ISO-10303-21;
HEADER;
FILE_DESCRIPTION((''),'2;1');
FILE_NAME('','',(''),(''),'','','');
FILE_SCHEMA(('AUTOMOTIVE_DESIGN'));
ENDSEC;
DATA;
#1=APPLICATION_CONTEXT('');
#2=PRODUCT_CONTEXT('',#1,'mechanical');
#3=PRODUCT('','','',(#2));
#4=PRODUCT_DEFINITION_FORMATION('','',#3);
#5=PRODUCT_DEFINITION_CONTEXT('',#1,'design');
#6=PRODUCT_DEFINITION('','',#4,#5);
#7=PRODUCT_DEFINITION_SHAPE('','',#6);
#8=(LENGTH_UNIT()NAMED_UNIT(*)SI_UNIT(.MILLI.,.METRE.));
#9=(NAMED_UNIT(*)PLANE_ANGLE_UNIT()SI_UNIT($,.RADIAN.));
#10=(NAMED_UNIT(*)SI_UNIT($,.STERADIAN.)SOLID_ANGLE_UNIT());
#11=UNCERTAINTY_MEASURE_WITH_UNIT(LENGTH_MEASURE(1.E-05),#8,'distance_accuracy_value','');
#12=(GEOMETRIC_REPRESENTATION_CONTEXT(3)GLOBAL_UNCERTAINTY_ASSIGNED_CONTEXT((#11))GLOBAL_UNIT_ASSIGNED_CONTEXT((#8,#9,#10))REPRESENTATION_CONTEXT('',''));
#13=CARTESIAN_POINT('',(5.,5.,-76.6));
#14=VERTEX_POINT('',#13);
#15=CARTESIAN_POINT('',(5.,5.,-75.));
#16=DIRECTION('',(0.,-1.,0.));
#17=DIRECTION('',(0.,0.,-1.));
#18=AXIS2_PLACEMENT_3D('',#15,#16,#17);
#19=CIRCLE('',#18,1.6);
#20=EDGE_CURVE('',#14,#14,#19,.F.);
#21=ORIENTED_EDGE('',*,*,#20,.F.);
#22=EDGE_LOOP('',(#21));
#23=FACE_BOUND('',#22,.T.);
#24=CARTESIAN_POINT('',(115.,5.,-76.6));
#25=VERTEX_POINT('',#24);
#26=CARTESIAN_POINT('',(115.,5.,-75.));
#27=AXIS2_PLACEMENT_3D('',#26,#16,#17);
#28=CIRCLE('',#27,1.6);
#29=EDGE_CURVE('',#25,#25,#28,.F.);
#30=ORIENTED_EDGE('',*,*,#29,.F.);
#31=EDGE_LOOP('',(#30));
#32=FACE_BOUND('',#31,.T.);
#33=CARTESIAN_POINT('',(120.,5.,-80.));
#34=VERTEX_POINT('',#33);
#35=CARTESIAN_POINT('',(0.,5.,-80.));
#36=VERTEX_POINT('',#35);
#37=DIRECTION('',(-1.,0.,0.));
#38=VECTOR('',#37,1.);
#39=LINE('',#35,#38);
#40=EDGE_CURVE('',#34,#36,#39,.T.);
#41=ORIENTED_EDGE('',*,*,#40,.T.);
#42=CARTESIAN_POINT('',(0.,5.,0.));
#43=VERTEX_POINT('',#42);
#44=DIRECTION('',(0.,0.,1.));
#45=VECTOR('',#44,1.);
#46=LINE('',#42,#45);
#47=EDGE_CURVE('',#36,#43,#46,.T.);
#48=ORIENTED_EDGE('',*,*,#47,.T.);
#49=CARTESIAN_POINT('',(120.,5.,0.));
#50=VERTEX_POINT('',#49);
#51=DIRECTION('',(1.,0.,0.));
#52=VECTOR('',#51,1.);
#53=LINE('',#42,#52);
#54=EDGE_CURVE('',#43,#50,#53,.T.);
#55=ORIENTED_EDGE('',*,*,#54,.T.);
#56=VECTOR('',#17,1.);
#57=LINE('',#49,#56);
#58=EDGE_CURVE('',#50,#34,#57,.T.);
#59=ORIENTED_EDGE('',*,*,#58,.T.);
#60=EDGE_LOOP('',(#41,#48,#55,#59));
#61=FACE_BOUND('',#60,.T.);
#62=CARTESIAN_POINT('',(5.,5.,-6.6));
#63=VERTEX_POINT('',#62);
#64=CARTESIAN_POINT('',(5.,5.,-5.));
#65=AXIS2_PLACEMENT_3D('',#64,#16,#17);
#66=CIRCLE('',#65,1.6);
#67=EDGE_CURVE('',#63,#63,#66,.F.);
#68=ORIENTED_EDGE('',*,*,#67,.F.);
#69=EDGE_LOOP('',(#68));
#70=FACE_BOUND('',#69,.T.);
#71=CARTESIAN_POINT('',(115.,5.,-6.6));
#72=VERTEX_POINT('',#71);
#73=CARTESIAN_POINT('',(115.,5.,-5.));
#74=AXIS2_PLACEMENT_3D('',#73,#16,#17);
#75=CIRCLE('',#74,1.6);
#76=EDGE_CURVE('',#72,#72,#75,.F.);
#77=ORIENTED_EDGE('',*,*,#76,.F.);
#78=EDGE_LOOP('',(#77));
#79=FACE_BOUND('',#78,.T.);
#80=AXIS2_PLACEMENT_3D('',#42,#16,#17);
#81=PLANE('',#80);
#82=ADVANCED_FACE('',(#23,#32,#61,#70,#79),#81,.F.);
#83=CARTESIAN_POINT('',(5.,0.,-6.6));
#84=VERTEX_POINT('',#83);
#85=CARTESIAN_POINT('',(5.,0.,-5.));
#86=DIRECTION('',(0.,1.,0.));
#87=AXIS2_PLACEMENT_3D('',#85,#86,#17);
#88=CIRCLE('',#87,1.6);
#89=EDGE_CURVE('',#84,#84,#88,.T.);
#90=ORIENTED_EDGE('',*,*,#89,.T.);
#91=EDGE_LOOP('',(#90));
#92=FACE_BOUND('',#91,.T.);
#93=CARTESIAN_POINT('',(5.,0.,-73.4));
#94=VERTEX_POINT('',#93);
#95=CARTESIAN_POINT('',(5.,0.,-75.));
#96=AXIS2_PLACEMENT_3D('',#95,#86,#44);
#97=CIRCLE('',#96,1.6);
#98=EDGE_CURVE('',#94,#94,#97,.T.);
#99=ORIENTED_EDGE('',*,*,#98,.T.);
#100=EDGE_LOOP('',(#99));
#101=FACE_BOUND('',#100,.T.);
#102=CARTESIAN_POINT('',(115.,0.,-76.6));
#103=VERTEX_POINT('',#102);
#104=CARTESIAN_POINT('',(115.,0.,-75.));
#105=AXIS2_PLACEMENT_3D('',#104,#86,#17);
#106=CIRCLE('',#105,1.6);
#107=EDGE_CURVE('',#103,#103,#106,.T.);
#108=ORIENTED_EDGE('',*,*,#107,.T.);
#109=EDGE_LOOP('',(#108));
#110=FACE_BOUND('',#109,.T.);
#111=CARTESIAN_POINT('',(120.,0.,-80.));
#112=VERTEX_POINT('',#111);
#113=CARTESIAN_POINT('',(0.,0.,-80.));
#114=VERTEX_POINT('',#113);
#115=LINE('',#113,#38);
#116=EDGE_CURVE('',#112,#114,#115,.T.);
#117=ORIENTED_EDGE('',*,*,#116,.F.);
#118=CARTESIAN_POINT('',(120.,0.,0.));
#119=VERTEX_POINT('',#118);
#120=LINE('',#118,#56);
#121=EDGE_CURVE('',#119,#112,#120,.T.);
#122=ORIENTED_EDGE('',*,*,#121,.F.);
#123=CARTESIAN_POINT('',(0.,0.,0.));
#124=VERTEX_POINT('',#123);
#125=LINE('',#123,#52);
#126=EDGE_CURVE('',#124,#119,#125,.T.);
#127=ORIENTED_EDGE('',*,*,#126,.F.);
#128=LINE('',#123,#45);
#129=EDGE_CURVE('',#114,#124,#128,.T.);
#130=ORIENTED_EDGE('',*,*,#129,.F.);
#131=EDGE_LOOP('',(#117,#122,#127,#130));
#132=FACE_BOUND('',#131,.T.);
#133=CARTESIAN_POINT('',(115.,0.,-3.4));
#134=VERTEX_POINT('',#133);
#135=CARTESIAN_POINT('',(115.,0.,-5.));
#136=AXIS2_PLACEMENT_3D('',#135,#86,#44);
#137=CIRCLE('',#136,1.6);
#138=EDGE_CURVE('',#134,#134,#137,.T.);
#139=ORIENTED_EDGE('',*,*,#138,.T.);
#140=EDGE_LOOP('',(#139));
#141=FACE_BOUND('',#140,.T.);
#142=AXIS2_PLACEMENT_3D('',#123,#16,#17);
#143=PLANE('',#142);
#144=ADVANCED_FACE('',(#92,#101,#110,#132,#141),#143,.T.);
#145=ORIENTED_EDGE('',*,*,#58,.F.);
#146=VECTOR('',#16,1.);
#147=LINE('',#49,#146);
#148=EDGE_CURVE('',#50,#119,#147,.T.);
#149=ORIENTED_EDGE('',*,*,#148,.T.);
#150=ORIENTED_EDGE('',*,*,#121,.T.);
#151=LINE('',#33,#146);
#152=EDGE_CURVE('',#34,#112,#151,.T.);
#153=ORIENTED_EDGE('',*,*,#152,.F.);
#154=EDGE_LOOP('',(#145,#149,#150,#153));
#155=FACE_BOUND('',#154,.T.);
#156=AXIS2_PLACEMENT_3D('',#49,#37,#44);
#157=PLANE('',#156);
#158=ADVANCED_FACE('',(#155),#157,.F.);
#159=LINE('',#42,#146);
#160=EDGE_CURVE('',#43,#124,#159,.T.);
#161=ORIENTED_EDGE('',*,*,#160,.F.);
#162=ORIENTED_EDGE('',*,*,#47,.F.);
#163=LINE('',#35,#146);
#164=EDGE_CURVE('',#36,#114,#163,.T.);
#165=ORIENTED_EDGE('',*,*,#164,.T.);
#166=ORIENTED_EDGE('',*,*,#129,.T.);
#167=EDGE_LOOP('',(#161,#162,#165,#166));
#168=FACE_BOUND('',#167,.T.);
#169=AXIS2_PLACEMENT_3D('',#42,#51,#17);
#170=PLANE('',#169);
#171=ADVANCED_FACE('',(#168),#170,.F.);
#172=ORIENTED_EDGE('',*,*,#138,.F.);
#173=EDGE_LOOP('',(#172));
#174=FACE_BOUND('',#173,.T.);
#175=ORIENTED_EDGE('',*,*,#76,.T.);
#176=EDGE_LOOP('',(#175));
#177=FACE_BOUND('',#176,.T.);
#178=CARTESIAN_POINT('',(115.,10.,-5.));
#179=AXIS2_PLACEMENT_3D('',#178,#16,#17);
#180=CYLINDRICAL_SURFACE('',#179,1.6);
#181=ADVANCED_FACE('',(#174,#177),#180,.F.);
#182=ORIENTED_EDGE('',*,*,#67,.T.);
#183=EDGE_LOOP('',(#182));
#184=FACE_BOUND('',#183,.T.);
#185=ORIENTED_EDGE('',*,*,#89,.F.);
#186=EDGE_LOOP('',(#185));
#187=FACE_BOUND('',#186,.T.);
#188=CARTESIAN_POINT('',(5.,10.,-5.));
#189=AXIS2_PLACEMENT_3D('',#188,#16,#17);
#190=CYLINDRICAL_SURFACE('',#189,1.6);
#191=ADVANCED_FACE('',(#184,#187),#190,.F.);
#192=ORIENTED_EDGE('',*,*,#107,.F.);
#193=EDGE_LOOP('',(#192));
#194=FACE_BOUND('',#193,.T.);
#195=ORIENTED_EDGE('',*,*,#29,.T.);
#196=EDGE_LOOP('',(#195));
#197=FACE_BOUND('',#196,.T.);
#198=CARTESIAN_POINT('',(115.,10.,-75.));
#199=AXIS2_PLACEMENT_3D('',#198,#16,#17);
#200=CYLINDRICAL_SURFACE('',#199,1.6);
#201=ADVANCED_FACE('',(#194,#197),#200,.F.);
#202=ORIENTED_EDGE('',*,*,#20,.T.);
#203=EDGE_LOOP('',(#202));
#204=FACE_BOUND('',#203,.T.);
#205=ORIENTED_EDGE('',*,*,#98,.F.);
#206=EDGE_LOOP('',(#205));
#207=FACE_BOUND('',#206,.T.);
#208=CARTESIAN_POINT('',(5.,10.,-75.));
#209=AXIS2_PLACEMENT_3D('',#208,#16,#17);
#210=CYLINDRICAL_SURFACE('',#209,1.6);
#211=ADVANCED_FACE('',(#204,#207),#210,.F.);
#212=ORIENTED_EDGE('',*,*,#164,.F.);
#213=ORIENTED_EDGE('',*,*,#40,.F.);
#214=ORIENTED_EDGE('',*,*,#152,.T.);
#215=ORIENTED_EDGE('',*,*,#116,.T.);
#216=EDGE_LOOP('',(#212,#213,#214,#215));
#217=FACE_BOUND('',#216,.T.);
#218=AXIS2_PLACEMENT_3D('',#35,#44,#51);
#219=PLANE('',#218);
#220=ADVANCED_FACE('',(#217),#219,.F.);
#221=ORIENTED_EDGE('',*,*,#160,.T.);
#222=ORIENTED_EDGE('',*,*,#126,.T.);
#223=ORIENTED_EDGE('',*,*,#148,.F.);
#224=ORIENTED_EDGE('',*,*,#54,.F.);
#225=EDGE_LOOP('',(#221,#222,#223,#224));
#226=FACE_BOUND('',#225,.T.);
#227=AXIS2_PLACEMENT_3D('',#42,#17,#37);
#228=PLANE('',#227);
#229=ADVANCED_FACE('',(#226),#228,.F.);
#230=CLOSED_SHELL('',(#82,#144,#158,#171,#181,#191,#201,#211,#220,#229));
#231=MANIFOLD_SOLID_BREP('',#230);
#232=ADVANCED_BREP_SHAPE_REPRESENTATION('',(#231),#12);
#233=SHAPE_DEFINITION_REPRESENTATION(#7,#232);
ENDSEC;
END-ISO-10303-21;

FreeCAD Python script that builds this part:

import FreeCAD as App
import Part
import Sketcher
Q = App.Units.Quantity


def add_polygon(sketch, points):
    """Adds a closed chain of lines whose ends are joined by coincident constraints."""
    first, n = sketch.GeometryCount, len(points)
    for a, b in zip(points, points[1:] + points[:1]):
        sketch.addGeometry(Part.LineSegment(App.Vector(*a, 0), App.Vector(*b, 0)), False)
    for i in range(n):
        sketch.addConstraint(Sketcher.Constraint("Coincident", first + i, 2, first + (i + 1) % n, 1))

doc = App.newDocument("Part")
body = doc.addObject("PartDesign::Body", "Body")

# Sketch on XZ plane
sketch1 = body.newObject("Sketcher::SketchObject", "Sketch")
sketch1.AttachmentSupport = (doc.getObject("XZ_Plane"), [""])
sketch1.MapMode = "FlatFace"
add_polygon(sketch1, [(0, -80), (0, 0), (120, 0), (120, -80)])  # lines 0-3
sketch1.addConstraint([
    Sketcher.Constraint("Vertical", 0),
    Sketcher.Constraint("Horizontal", 1),
    Sketcher.Constraint("Vertical", 2),
    Sketcher.Constraint("Horizontal", 3),
    Sketcher.Constraint("Coincident", 0, 2, -1, 1),
    Sketcher.Constraint("DistanceX", 1, 1, 1, 2, Q("120 mm")),
    Sketcher.Constraint("DistanceY", 0, 1, 0, 2, Q("80 mm")),
])
pad1 = body.newObject("PartDesign::Pad", "Pad")
pad1.Profile = sketch1
pad1.Length = 5
pad1.Reversed = True

# Sketch on XZ plane
sketch2 = body.newObject("Sketcher::SketchObject", "Sketch001")
sketch2.AttachmentSupport = (doc.getObject("XZ_Plane"), [""])
sketch2.MapMode = "FlatFace"
sketch2.addGeometry([
    Part.Circle(App.Vector(5, -75, 0), App.Vector(0, 0, 1), 1.6),
    Part.Circle(App.Vector(115, -75, 0), App.Vector(0, 0, 1), 1.6),
    Part.Circle(App.Vector(115, -5, 0), App.Vector(0, 0, 1), 1.6),
    Part.Circle(App.Vector(5, -5, 0), App.Vector(0, 0, 1), 1.6),
], False)
sketch2.addConstraint([
    Sketcher.Constraint("Equal", 0, 1),
    Sketcher.Constraint("Equal", 1, 2),
    Sketcher.Constraint("Equal", 2, 3),
    Sketcher.Constraint("Horizontal", 0, 3, 1, 3),
    Sketcher.Constraint("Horizontal", 2, 3, 3, 3),
    Sketcher.Constraint("Vertical", 1, 3, 2, 3),
    Sketcher.Constraint("Vertical", 0, 3, 3, 3),
    Sketcher.Constraint("Diameter", 0, Q("3.2 mm")),
    Sketcher.Constraint("DistanceX", -1, 1, 0, 3, Q("5 mm")),
    Sketcher.Constraint("DistanceY", 0, 3, -1, 1, Q("75 mm")),
    Sketcher.Constraint("DistanceX", -1, 1, 1, 3, Q("115 mm")),
    Sketcher.Constraint("DistanceY", 2, 3, -1, 1, Q("5 mm")),
])
pocket1 = body.newObject("PartDesign::Pocket", "Pocket")
pocket1.Profile = sketch2
pocket1.Length = 10

doc.recompute()
